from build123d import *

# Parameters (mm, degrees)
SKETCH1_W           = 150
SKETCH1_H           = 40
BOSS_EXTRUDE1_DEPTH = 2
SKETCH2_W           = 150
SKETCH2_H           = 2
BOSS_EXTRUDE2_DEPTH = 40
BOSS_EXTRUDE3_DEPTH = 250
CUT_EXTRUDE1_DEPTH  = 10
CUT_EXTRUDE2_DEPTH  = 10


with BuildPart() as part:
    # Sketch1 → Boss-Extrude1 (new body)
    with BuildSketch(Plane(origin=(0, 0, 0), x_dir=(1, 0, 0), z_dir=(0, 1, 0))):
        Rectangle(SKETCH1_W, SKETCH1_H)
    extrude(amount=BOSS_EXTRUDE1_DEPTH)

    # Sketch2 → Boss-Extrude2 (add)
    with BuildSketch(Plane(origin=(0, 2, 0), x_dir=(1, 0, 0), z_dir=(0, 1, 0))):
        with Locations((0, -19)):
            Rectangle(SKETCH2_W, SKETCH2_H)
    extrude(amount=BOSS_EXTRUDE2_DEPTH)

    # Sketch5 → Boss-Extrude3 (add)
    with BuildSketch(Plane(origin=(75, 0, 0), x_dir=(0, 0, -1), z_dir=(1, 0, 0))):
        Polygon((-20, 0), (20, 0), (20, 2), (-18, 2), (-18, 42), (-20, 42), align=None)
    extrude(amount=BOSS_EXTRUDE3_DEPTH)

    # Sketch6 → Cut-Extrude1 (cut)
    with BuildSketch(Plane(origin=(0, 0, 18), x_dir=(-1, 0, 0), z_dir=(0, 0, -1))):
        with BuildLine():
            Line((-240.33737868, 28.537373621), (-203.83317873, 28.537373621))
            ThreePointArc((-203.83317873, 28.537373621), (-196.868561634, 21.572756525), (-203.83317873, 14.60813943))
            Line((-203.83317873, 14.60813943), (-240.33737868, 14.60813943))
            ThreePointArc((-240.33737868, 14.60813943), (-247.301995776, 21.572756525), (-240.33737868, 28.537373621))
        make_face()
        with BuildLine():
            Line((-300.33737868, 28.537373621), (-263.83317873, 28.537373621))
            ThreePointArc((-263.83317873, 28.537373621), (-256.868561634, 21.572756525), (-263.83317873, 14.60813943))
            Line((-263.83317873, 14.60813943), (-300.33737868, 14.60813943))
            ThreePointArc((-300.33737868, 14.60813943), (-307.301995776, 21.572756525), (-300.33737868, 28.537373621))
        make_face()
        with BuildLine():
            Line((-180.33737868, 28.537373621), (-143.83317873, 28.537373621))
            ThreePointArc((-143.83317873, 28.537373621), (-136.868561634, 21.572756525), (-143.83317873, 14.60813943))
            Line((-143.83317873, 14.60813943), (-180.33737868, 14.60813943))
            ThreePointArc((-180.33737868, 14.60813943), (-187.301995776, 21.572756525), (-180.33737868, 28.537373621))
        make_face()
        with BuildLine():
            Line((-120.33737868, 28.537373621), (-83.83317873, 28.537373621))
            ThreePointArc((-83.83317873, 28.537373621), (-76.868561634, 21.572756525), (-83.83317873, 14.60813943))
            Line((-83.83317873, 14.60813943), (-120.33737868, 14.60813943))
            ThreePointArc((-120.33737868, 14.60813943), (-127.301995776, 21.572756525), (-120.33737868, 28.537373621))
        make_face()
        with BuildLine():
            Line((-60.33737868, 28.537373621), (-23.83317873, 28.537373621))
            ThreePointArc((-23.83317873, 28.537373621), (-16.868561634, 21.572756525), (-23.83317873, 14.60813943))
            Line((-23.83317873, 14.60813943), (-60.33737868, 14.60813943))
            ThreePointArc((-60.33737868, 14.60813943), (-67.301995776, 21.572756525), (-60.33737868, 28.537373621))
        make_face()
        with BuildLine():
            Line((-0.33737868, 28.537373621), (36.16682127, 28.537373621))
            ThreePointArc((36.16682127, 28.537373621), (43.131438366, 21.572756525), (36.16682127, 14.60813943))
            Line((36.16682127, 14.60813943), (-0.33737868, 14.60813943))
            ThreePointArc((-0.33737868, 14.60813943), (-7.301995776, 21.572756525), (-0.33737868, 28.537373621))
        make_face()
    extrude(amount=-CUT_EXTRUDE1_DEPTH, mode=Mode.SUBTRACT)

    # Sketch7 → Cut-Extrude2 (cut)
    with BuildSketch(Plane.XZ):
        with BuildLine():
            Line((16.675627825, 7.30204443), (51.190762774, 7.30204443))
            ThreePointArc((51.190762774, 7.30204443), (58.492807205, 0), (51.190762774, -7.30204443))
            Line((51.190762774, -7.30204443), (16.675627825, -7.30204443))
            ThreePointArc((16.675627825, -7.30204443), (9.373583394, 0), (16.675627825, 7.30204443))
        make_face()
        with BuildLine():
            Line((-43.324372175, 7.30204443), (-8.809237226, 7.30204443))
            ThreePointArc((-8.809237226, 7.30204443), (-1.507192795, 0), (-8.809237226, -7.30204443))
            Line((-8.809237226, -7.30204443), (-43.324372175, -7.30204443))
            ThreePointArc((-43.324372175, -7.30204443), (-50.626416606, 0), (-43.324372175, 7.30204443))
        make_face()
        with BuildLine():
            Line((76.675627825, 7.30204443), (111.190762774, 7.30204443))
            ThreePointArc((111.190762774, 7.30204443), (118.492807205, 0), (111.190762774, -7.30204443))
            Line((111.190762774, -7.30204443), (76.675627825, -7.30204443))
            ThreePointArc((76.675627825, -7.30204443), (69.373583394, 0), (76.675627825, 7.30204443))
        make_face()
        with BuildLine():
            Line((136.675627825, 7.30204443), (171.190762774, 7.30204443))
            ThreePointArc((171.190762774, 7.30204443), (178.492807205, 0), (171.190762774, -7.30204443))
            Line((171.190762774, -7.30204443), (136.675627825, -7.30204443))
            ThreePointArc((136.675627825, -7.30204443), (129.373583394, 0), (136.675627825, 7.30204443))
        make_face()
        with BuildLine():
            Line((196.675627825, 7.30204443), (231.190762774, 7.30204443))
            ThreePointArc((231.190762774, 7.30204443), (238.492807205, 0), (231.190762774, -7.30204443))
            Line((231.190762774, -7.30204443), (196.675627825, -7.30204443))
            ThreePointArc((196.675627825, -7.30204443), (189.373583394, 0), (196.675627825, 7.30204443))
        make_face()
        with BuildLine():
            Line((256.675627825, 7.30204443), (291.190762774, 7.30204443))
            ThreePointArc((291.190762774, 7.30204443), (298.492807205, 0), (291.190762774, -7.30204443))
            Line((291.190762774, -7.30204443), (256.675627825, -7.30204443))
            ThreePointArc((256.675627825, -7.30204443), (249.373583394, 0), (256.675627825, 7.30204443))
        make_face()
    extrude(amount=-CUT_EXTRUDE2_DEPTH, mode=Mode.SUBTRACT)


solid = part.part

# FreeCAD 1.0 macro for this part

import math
import FreeCAD as App
import Part
import Sketcher
from FreeCAD import Vector


def add_polygon(sketch, points):
    """Adds a closed chain of lines whose ends are joined by coincident constraints."""
    first, n = sketch.GeometryCount, len(points)
    for a, b in zip(points, points[1:] + points[:1]):
        sketch.addGeometry(Part.LineSegment(App.Vector(*a, 0), App.Vector(*b, 0)), False)
    for i in range(n):
        sketch.addConstraint(Sketcher.Constraint("Coincident", first + i, 2, first + (i + 1) % n, 1))

doc = App.newDocument("Part")
body = doc.addObject("PartDesign::Body", "Body")

sketch1 = doc.addObject("Sketcher::SketchObject", "Sketch")
body.addObject(sketch1)
sketch1.AttachmentSupport = (doc.XZ_Plane, [""])
sketch1.MapMode = "FlatFace"
add_polygon(sketch1, [(-75, -20), (-75, 20), (75, 20), (75, -20)])
sketch1.addConstraint(Sketcher.Constraint("Vertical", 0))
sketch1.addConstraint(Sketcher.Constraint("Horizontal", 1))
sketch1.addConstraint(Sketcher.Constraint("Vertical", 2))
sketch1.addConstraint(Sketcher.Constraint("Horizontal", 3))
sketch1.addConstraint(Sketcher.Constraint("Symmetric", 0, 2, 2, 2, -1, 1))
sketch1.addConstraint(Sketcher.Constraint("DistanceX", 1, 1, 1, 2, 150.0))
sketch1.addConstraint(Sketcher.Constraint("DistanceY", 0, 1, 0, 2, 40.0))
pad1 = doc.addObject("PartDesign::Pad", "Pad")
body.addObject(pad1)
pad1.Profile = sketch1
pad1.Length = 2
pad1.Reversed = True

sketch2 = doc.addObject("Sketcher::SketchObject", "Sketch001")
body.addObject(sketch2)
sketch2.AttachmentSupport = (doc.XZ_Plane, [""])
sketch2.MapMode = "FlatFace"
sketch2.AttachmentOffset = App.Placement(Vector(0, 0, -2), App.Rotation())
add_polygon(sketch2, [(-75, 18), (-75, 20), (75, 20), (75, 18)])
sketch2.addConstraint(Sketcher.Constraint("Vertical", 0))
sketch2.addConstraint(Sketcher.Constraint("Horizontal", 1))
sketch2.addConstraint(Sketcher.Constraint("Vertical", 2))
sketch2.addConstraint(Sketcher.Constraint("Horizontal", 3))
sketch2.addConstraint(Sketcher.Constraint("DistanceX", 1, 1, 1, 2, 150.0))
sketch2.addConstraint(Sketcher.Constraint("DistanceY", 0, 1, 0, 2, 2.0))
sketch2.addConstraint(Sketcher.Constraint("DistanceX", 0, 2, -1, 1, 75.0))
sketch2.addConstraint(Sketcher.Constraint("DistanceY", -1, 1, 0, 2, 20.0))
pad2 = doc.addObject("PartDesign::Pad", "Pad001")
body.addObject(pad2)
pad2.Profile = sketch2
pad2.Length = 40
pad2.Reversed = True

sketch3 = doc.addObject("Sketcher::SketchObject", "Sketch002")
body.addObject(sketch3)
sketch3.AttachmentSupport = (doc.YZ_Plane, [""])
sketch3.MapMode = "FlatFace"
sketch3.AttachmentOffset = App.Placement(Vector(0, 0, 75), App.Rotation())
add_polygon(sketch3, [(0, 20), (0, -20), (2, -20), (2, 18), (42, 18), (42, 20)])
sketch3.addConstraint(Sketcher.Constraint("Vertical", 0))
sketch3.addConstraint(Sketcher.Constraint("Horizontal", 1))
sketch3.addConstraint(Sketcher.Constraint("Vertical", 2))
sketch3.addConstraint(Sketcher.Constraint("Horizontal", 3))
sketch3.addConstraint(Sketcher.Constraint("Vertical", 4))
sketch3.addConstraint(Sketcher.Constraint("Horizontal", 5))
sketch3.addConstraint(Sketcher.Constraint("Symmetric", 0, 2, 5, 2, -1, 1))
sketch3.addConstraint(Sketcher.Constraint("Equal", 3, 0))
sketch3.addConstraint(Sketcher.Constraint("Equal", 1, 4))
sketch3.addConstraint(Sketcher.Constraint("DistanceX", 1, 1, 1, 2, 2.0))
sketch3.addConstraint(Sketcher.Constraint("DistanceX", 3, 1, 3, 2, 40.0))
pad3 = doc.addObject("PartDesign::Pad", "Pad002")
body.addObject(pad3)
pad3.Profile = sketch3
pad3.Length = 250

sketch4 = doc.addObject("Sketcher::SketchObject", "Sketch003")
body.addObject(sketch4)
sketch4.AttachmentSupport = (doc.XY_Plane, [""])
sketch4.MapMode = "FlatFace"
sketch4.AttachmentOffset = App.Placement(Vector(0, 0, 18), App.Rotation())
sketch4.addGeometry(Part.LineSegment(Vector(203.833179, 28.537374, 0), Vector(240.337379, 28.537374, 0)), False)
sketch4.addGeometry(Part.ArcOfCircle(Part.Circle(Vector(240.337379, 21.572757, 0), Vector(0, 0, 1), 6.964617), math.radians(-90), math.radians(90)), False)
sketch4.addGeometry(Part.LineSegment(Vector(240.337379, 14.608139, 0), Vector(203.833179, 14.608139, 0)), False)
sketch4.addGeometry(Part.ArcOfCircle(Part.Circle(Vector(203.833179, 21.572757, 0), Vector(0, 0, 1), 6.964617), math.radians(90), math.radians(270)), False)
sketch4.addGeometry(Part.LineSegment(Vector(263.833179, 28.537374, 0), Vector(300.337379, 28.537374, 0)), False)
sketch4.addGeometry(Part.ArcOfCircle(Part.Circle(Vector(300.337379, 21.572757, 0), Vector(0, 0, 1), 6.964617), math.radians(-90), math.radians(90)), False)
sketch4.addGeometry(Part.LineSegment(Vector(300.337379, 14.608139, 0), Vector(263.833179, 14.608139, 0)), False)
sketch4.addGeometry(Part.ArcOfCircle(Part.Circle(Vector(263.833179, 21.572757, 0), Vector(0, 0, 1), 6.964617), math.radians(90), math.radians(270)), False)
sketch4.addGeometry(Part.LineSegment(Vector(143.833179, 28.537374, 0), Vector(180.337379, 28.537374, 0)), False)
sketch4.addGeometry(Part.ArcOfCircle(Part.Circle(Vector(180.337379, 21.572757, 0), Vector(0, 0, 1), 6.964617), math.radians(-90), math.radians(90)), False)
sketch4.addGeometry(Part.LineSegment(Vector(180.337379, 14.608139, 0), Vector(143.833179, 14.608139, 0)), False)
sketch4.addGeometry(Part.ArcOfCircle(Part.Circle(Vector(143.833179, 21.572757, 0), Vector(0, 0, 1), 6.964617), math.radians(90), math.radians(270)), False)
sketch4.addGeometry(Part.LineSegment(Vector(83.833179, 28.537374, 0), Vector(120.337379, 28.537374, 0)), False)
sketch4.addGeometry(Part.ArcOfCircle(Part.Circle(Vector(120.337379, 21.572757, 0), Vector(0, 0, 1), 6.964617), math.radians(-90), math.radians(90)), False)
sketch4.addGeometry(Part.LineSegment(Vector(120.337379, 14.608139, 0), Vector(83.833179, 14.608139, 0)), False)
sketch4.addGeometry(Part.ArcOfCircle(Part.Circle(Vector(83.833179, 21.572757, 0), Vector(0, 0, 1), 6.964617), math.radians(90), math.radians(270)), False)
sketch4.addGeometry(Part.LineSegment(Vector(23.833179, 28.537374, 0), Vector(60.337379, 28.537374, 0)), False)
sketch4.addGeometry(Part.ArcOfCircle(Part.Circle(Vector(60.337379, 21.572757, 0), Vector(0, 0, 1), 6.964617), math.radians(-90), math.radians(90)), False)
sketch4.addGeometry(Part.LineSegment(Vector(60.337379, 14.608139, 0), Vector(23.833179, 14.608139, 0)), False)
sketch4.addGeometry(Part.ArcOfCircle(Part.Circle(Vector(23.833179, 21.572757, 0), Vector(0, 0, 1), 6.964617), math.radians(90), math.radians(270)), False)
sketch4.addGeometry(Part.LineSegment(Vector(-36.166821, 28.537374, 0), Vector(0.337379, 28.537374, 0)), False)
sketch4.addGeometry(Part.ArcOfCircle(Part.Circle(Vector(0.337379, 21.572757, 0), Vector(0, 0, 1), 6.964617), math.radians(-90), math.radians(90)), False)
sketch4.addGeometry(Part.LineSegment(Vector(0.337379, 14.608139, 0), Vector(-36.166821, 14.608139, 0)), False)
sketch4.addGeometry(Part.ArcOfCircle(Part.Circle(Vector(-36.166821, 21.572757, 0), Vector(0, 0, 1), 6.964617), math.radians(90), math.radians(270)), False)
sketch4.addConstraint(Sketcher.Constraint("Tangent", 0, 2, 1, 2))
sketch4.addConstraint(Sketcher.Constraint("Tangent", 1, 1, 2, 1))
sketch4.addConstraint(Sketcher.Constraint("Tangent", 2, 2, 3, 2))
sketch4.addConstraint(Sketcher.Constraint("Tangent", 3, 1, 0, 1))
sketch4.addConstraint(Sketcher.Constraint("Tangent", 4, 2, 5, 2))
sketch4.addConstraint(Sketcher.Constraint("Tangent", 5, 1, 6, 1))
sketch4.addConstraint(Sketcher.Constraint("Tangent", 6, 2, 7, 2))
sketch4.addConstraint(Sketcher.Constraint("Tangent", 7, 1, 4, 1))
sketch4.addConstraint(Sketcher.Constraint("Tangent", 8, 2, 9, 2))
sketch4.addConstraint(Sketcher.Constraint("Tangent", 9, 1, 10, 1))
sketch4.addConstraint(Sketcher.Constraint("Tangent", 10, 2, 11, 2))
sketch4.addConstraint(Sketcher.Constraint("Tangent", 11, 1, 8, 1))
sketch4.addConstraint(Sketcher.Constraint("Tangent", 12, 2, 13, 2))
sketch4.addConstraint(Sketcher.Constraint("Tangent", 13, 1, 14, 1))
sketch4.addConstraint(Sketcher.Constraint("Tangent", 14, 2, 15, 2))
sketch4.addConstraint(Sketcher.Constraint("Tangent", 15, 1, 12, 1))
sketch4.addConstraint(Sketcher.Constraint("Tangent", 16, 2, 17, 2))
sketch4.addConstraint(Sketcher.Constraint("Tangent", 17, 1, 18, 1))
sketch4.addConstraint(Sketcher.Constraint("Tangent", 18, 2, 19, 2))
sketch4.addConstraint(Sketcher.Constraint("Tangent", 19, 1, 16, 1))
sketch4.addConstraint(Sketcher.Constraint("Tangent", 20, 2, 21, 2))
sketch4.addConstraint(Sketcher.Constraint("Tangent", 21, 1, 22, 1))
sketch4.addConstraint(Sketcher.Constraint("Tangent", 22, 2, 23, 2))
sketch4.addConstraint(Sketcher.Constraint("Tangent", 23, 1, 20, 1))
sketch4.addConstraint(Sketcher.Constraint("Horizontal", 0))
sketch4.addConstraint(Sketcher.Constraint("Horizontal", 2))
sketch4.addConstraint(Sketcher.Constraint("Horizontal", 4))
sketch4.addConstraint(Sketcher.Constraint("Horizontal", 6))
sketch4.addConstraint(Sketcher.Constraint("Horizontal", 8))
sketch4.addConstraint(Sketcher.Constraint("Horizontal", 10))
sketch4.addConstraint(Sketcher.Constraint("Horizontal", 12))
sketch4.addConstraint(Sketcher.Constraint("Horizontal", 14))
sketch4.addConstraint(Sketcher.Constraint("Horizontal", 16))
sketch4.addConstraint(Sketcher.Constraint("Horizontal", 18))
sketch4.addConstraint(Sketcher.Constraint("Horizontal", 20))
sketch4.addConstraint(Sketcher.Constraint("Horizontal", 22))
sketch4.addConstraint(Sketcher.Constraint("Equal", 3, 5))
sketch4.addConstraint(Sketcher.Constraint("Equal", 7, 9))
sketch4.addConstraint(Sketcher.Constraint("Equal", 11, 13))
sketch4.addConstraint(Sketcher.Constraint("Equal", 15, 17))
sketch4.addConstraint(Sketcher.Constraint("Equal", 19, 21))
sketch4.addConstraint(Sketcher.Constraint("Horizontal", 3, 3, 5, 3))
sketch4.addConstraint(Sketcher.Constraint("Horizontal", 7, 3, 9, 3))
sketch4.addConstraint(Sketcher.Constraint("Horizontal", 11, 3, 13, 3))
sketch4.addConstraint(Sketcher.Constraint("Horizontal", 15, 3, 17, 3))
sketch4.addConstraint(Sketcher.Constraint("Horizontal", 19, 3, 21, 3))
sketch4.addConstraint(Sketcher.Constraint("Equal", 2, 4))
sketch4.addConstraint(Sketcher.Constraint("Equal", 6, 8))
sketch4.addConstraint(Sketcher.Constraint("Equal", 10, 12))
sketch4.addConstraint(Sketcher.Constraint("Equal", 14, 16))
sketch4.addConstraint(Sketcher.Constraint("Equal", 18, 20))
sketch4.addConstraint(Sketcher.Constraint("DistanceX", 1, 3, 5, 3, 60.0))
sketch4.addConstraint(Sketcher.Constraint("DistanceX", 9, 3, 1, 3, 60.0))
sketch4.addConstraint(Sketcher.Constraint("DistanceX", 13, 3, 9, 3, 60.0))
sketch4.addConstraint(Sketcher.Constraint("DistanceX", 17, 3, 13, 3, 60.0))
sketch4.addConstraint(Sketcher.Constraint("DistanceX", 21, 3, 17, 3, 60.0))
sketch4.addConstraint(Sketcher.Constraint("DistanceX", 0, 1, 0, 2, 36.5042))
sketch4.addConstraint(Sketcher.Constraint("Radius", 1, 6.964617))
sketch4.addConstraint(Sketcher.Constraint("DistanceX", -1, 1, 1, 3, 240.337379))
sketch4.addConstraint(Sketcher.Constraint("DistanceY", -1, 1, 1, 1, 14.608139))
pocket1 = doc.addObject("PartDesign::Pocket", "Pocket")
body.addObject(pocket1)
pocket1.Profile = sketch4
pocket1.Length = 10
pocket1.Reversed = True

sketch5 = doc.addObject("Sketcher::SketchObject", "Sketch004")
body.addObject(sketch5)
sketch5.AttachmentSupport = (doc.XZ_Plane, [""])
sketch5.MapMode = "FlatFace"
sketch5.addGeometry(Part.LineSegment(Vector(51.190763, 7.302044, 0), Vector(16.675628, 7.302044, 0)), False)
sketch5.addGeometry(Part.ArcOfCircle(Part.Circle(Vector(16.675628, 0, 0), Vector(0, 0, 1), 7.302044), math.radians(90), math.radians(270)), False)
sketch5.addGeometry(Part.LineSegment(Vector(16.675628, -7.302044, 0), Vector(51.190763, -7.302044, 0)), False)
sketch5.addGeometry(Part.ArcOfCircle(Part.Circle(Vector(51.190763, 0, 0), Vector(0, 0, 1), 7.302044), math.radians(-90), math.radians(90)), False)
sketch5.addGeometry(Part.LineSegment(Vector(-8.809237, 7.302044, 0), Vector(-43.324372, 7.302044, 0)), False)
sketch5.addGeometry(Part.ArcOfCircle(Part.Circle(Vector(-43.324372, 0, 0), Vector(0, 0, 1), 7.302044), math.radians(90), math.radians(270)), False)
sketch5.addGeometry(Part.LineSegment(Vector(-43.324372, -7.302044, 0), Vector(-8.809237, -7.302044, 0)), False)
sketch5.addGeometry(Part.ArcOfCircle(Part.Circle(Vector(-8.809237, 0, 0), Vector(0, 0, 1), 7.302044), math.radians(-90), math.radians(90)), False)
sketch5.addGeometry(Part.LineSegment(Vector(111.190763, 7.302044, 0), Vector(76.675628, 7.302044, 0)), False)
sketch5.addGeometry(Part.ArcOfCircle(Part.Circle(Vector(76.675628, 0, 0), Vector(0, 0, 1), 7.302044), math.radians(90), math.radians(270)), False)
sketch5.addGeometry(Part.LineSegment(Vector(76.675628, -7.302044, 0), Vector(111.190763, -7.302044, 0)), False)
sketch5.addGeometry(Part.ArcOfCircle(Part.Circle(Vector(111.190763, 0, 0), Vector(0, 0, 1), 7.302044), math.radians(-90), math.radians(90)), False)
sketch5.addGeometry(Part.LineSegment(Vector(171.190763, 7.302044, 0), Vector(136.675628, 7.302044, 0)), False)
sketch5.addGeometry(Part.ArcOfCircle(Part.Circle(Vector(136.675628, 0, 0), Vector(0, 0, 1), 7.302044), math.radians(90), math.radians(270)), False)
sketch5.addGeometry(Part.LineSegment(Vector(136.675628, -7.302044, 0), Vector(171.190763, -7.302044, 0)), False)
sketch5.addGeometry(Part.ArcOfCircle(Part.Circle(Vector(171.190763, 0, 0), Vector(0, 0, 1), 7.302044), math.radians(-90), math.radians(90)), False)
sketch5.addGeometry(Part.LineSegment(Vector(231.190763, 7.302044, 0), Vector(196.675628, 7.302044, 0)), False)
sketch5.addGeometry(Part.ArcOfCircle(Part.Circle(Vector(196.675628, 0, 0), Vector(0, 0, 1), 7.302044), math.radians(90), math.radians(270)), False)
sketch5.addGeometry(Part.LineSegment(Vector(196.675628, -7.302044, 0), Vector(231.190763, -7.302044, 0)), False)
sketch5.addGeometry(Part.ArcOfCircle(Part.Circle(Vector(231.190763, 0, 0), Vector(0, 0, 1), 7.302044), math.radians(-90), math.radians(90)), False)
sketch5.addGeometry(Part.LineSegment(Vector(291.190763, 7.302044, 0), Vector(256.675628, 7.302044, 0)), False)
sketch5.addGeometry(Part.ArcOfCircle(Part.Circle(Vector(256.675628, 0, 0), Vector(0, 0, 1), 7.302044), math.radians(90), math.radians(270)), False)
sketch5.addGeometry(Part.LineSegment(Vector(256.675628, -7.302044, 0), Vector(291.190763, -7.302044, 0)), False)
sketch5.addGeometry(Part.ArcOfCircle(Part.Circle(Vector(291.190763, 0, 0), Vector(0, 0, 1), 7.302044), math.radians(-90), math.radians(90)), False)
sketch5.addConstraint(Sketcher.Constraint("Tangent", 0, 2, 1, 1))
sketch5.addConstraint(Sketcher.Constraint("Tangent", 1, 2, 2, 1))
sketch5.addConstraint(Sketcher.Constraint("Tangent", 2, 2, 3, 1))
sketch5.addConstraint(Sketcher.Constraint("Tangent", 3, 2, 0, 1))
sketch5.addConstraint(Sketcher.Constraint("Tangent", 4, 2, 5, 1))
sketch5.addConstraint(Sketcher.Constraint("Tangent", 5, 2, 6, 1))
sketch5.addConstraint(Sketcher.Constraint("Tangent", 6, 2, 7, 1))
sketch5.addConstraint(Sketcher.Constraint("Tangent", 7, 2, 4, 1))
sketch5.addConstraint(Sketcher.Constraint("Tangent", 8, 2, 9, 1))
sketch5.addConstraint(Sketcher.Constraint("Tangent", 9, 2, 10, 1))
sketch5.addConstraint(Sketcher.Constraint("Tangent", 10, 2, 11, 1))
sketch5.addConstraint(Sketcher.Constraint("Tangent", 11, 2, 8, 1))
sketch5.addConstraint(Sketcher.Constraint("Tangent", 12, 2, 13, 1))
sketch5.addConstraint(Sketcher.Constraint("Tangent", 13, 2, 14, 1))
sketch5.addConstraint(Sketcher.Constraint("Tangent", 14, 2, 15, 1))
sketch5.addConstraint(Sketcher.Constraint("Tangent", 15, 2, 12, 1))
sketch5.addConstraint(Sketcher.Constraint("Tangent", 16, 2, 17, 1))
sketch5.addConstraint(Sketcher.Constraint("Tangent", 17, 2, 18, 1))
sketch5.addConstraint(Sketcher.Constraint("Tangent", 18, 2, 19, 1))
sketch5.addConstraint(Sketcher.Constraint("Tangent", 19, 2, 16, 1))
sketch5.addConstraint(Sketcher.Constraint("Tangent", 20, 2, 21, 1))
sketch5.addConstraint(Sketcher.Constraint("Tangent", 21, 2, 22, 1))
sketch5.addConstraint(Sketcher.Constraint("Tangent", 22, 2, 23, 1))
sketch5.addConstraint(Sketcher.Constraint("Tangent", 23, 2, 20, 1))
sketch5.addConstraint(Sketcher.Constraint("Horizontal", 0))
sketch5.addConstraint(Sketcher.Constraint("Horizontal", 2))
sketch5.addConstraint(Sketcher.Constraint("Horizontal", 4))
sketch5.addConstraint(Sketcher.Constraint("Horizontal", 6))
sketch5.addConstraint(Sketcher.Constraint("Horizontal", 8))
sketch5.addConstraint(Sketcher.Constraint("Horizontal", 10))
sketch5.addConstraint(Sketcher.Constraint("Horizontal", 12))
sketch5.addConstraint(Sketcher.Constraint("Horizontal", 14))
sketch5.addConstraint(Sketcher.Constraint("Horizontal", 16))
sketch5.addConstraint(Sketcher.Constraint("Horizontal", 18))
sketch5.addConstraint(Sketcher.Constraint("Horizontal", 20))
sketch5.addConstraint(Sketcher.Constraint("Horizontal", 22))
sketch5.addConstraint(Sketcher.Constraint("Equal", 3, 5))
sketch5.addConstraint(Sketcher.Constraint("Equal", 7, 9))
sketch5.addConstraint(Sketcher.Constraint("Equal", 11, 13))
sketch5.addConstraint(Sketcher.Constraint("Equal", 15, 17))
sketch5.addConstraint(Sketcher.Constraint("Equal", 19, 21))
sketch5.addConstraint(Sketcher.Constraint("PointOnObject", 1, 3, -1))
sketch5.addConstraint(Sketcher.Constraint("PointOnObject", 5, 3, -1))
sketch5.addConstraint(Sketcher.Constraint("PointOnObject", 9, 3, -1))
sketch5.addConstraint(Sketcher.Constraint("PointOnObject", 13, 3, -1))
sketch5.addConstraint(Sketcher.Constraint("PointOnObject", 17, 3, -1))
sketch5.addConstraint(Sketcher.Constraint("PointOnObject", 21, 3, -1))
sketch5.addConstraint(Sketcher.Constraint("Equal", 2, 4))
sketch5.addConstraint(Sketcher.Constraint("Equal", 6, 8))
sketch5.addConstraint(Sketcher.Constraint("Equal", 10, 12))
sketch5.addConstraint(Sketcher.Constraint("Equal", 14, 16))
sketch5.addConstraint(Sketcher.Constraint("Equal", 18, 20))
sketch5.addConstraint(Sketcher.Constraint("DistanceX", 5, 3, 1, 3, 60.0))
sketch5.addConstraint(Sketcher.Constraint("DistanceX", 1, 3, 9, 3, 60.0))
sketch5.addConstraint(Sketcher.Constraint("DistanceX", 9, 3, 13, 3, 60.0))
sketch5.addConstraint(Sketcher.Constraint("DistanceX", 13, 3, 17, 3, 60.0))
sketch5.addConstraint(Sketcher.Constraint("DistanceX", 17, 3, 21, 3, 60.0))
sketch5.addConstraint(Sketcher.Constraint("Radius", 1, 7.302044))
sketch5.addConstraint(Sketcher.Constraint("DistanceX", 0, 2, 0, 1, 34.515135))
sketch5.addConstraint(Sketcher.Constraint("DistanceX", -1, 1, 1, 3, 16.675628))
pocket2 = doc.addObject("PartDesign::Pocket", "Pocket001")
body.addObject(pocket2)
pocket2.Profile = sketch5
pocket2.Length = 10

doc.recompute()
